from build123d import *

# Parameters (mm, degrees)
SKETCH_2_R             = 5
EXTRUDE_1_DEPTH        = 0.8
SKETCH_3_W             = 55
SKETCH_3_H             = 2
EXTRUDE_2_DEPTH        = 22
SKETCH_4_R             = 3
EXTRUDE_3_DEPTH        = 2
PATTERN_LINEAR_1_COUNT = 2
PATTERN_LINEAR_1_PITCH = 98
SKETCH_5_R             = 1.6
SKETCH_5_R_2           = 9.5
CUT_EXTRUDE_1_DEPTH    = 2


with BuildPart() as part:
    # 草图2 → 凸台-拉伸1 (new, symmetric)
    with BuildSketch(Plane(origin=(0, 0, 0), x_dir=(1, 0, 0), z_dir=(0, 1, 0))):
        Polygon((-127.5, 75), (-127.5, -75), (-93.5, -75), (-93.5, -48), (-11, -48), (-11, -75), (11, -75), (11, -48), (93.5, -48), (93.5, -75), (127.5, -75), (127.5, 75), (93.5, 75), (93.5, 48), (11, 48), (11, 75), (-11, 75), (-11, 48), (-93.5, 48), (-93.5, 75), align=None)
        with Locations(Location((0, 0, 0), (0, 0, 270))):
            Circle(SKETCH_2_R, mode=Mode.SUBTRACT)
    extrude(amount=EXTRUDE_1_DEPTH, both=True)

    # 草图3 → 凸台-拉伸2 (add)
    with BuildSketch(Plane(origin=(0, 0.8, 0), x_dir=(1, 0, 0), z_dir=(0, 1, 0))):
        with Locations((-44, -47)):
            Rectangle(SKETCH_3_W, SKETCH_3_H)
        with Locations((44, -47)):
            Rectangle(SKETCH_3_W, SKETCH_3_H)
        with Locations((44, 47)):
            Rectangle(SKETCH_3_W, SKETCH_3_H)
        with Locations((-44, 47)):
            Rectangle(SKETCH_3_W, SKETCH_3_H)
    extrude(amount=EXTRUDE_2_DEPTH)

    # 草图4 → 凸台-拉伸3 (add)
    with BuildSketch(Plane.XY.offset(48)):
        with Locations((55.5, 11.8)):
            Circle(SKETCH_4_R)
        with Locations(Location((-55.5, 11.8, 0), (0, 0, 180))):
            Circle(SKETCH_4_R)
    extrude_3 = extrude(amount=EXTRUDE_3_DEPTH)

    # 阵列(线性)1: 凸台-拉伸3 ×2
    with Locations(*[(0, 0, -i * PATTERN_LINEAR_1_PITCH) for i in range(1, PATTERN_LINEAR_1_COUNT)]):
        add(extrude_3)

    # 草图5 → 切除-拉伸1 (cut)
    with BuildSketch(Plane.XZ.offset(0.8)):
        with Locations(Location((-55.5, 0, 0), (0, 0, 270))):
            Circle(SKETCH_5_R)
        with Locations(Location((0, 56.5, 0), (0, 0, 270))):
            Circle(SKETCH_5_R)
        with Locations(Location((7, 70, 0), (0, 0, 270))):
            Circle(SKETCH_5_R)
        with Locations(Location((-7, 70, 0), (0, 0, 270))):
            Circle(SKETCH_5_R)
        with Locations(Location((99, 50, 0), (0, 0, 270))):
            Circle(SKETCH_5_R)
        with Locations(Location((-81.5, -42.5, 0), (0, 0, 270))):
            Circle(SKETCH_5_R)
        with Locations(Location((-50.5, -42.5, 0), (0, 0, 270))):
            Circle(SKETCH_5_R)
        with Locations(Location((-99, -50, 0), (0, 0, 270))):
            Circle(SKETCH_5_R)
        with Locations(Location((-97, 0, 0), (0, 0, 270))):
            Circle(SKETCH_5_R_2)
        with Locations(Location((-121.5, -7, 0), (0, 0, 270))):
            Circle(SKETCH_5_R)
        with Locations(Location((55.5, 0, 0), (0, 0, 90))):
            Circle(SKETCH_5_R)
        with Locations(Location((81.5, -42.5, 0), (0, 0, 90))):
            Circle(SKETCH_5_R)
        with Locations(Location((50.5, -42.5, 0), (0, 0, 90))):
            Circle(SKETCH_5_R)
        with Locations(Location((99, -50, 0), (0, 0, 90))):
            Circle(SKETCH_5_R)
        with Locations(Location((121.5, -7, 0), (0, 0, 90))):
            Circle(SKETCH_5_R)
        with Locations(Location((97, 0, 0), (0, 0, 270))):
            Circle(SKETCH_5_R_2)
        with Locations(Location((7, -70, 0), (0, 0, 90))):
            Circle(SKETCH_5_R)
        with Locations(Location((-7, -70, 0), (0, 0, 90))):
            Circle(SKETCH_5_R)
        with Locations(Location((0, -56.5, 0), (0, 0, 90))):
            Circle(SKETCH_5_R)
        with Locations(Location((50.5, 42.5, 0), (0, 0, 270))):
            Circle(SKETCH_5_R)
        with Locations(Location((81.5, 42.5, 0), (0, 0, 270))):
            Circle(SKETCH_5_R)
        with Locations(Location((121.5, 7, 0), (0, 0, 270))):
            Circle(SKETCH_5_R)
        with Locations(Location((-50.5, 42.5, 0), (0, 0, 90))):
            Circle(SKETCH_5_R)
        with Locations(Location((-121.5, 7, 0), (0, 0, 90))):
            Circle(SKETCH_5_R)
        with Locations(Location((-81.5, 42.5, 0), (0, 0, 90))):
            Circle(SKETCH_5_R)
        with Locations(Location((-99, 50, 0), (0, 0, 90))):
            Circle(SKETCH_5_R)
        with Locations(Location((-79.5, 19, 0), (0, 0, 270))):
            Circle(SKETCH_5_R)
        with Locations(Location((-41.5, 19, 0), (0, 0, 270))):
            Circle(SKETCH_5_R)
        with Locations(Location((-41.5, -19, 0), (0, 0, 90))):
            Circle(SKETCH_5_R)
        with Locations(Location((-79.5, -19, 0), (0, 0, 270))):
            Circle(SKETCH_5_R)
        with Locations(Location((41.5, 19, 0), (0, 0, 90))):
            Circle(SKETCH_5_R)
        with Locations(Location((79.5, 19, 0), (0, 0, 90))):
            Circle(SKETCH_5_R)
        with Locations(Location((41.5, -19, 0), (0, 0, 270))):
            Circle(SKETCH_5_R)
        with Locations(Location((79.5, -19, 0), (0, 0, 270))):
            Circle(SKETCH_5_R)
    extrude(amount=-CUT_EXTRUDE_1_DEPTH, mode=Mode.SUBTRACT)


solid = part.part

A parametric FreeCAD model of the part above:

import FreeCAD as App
import Part
import Sketcher

V = App.Vector

doc = App.newDocument("Part")
body = doc.addObject("PartDesign::Body", "Body")

# Sketch on XZ plane
sketch1 = doc.addObject("Sketcher::SketchObject", "Sketch")
body.addObject(sketch1)
sketch1.AttachmentSupport = (doc.XZ_Plane, [""])
sketch1.MapMode = "FlatFace"
sketch1.addGeometry([
    Part.LineSegment(V(-128, -75, 0), V(-128, 75, 0)),  # 0
    Part.LineSegment(V(-128, 75, 0), V(-94, 75, 0)),  # 1
    Part.LineSegment(V(-94, 75, 0), V(-94, 48, 0)),  # 2
    Part.LineSegment(V(-94, 48, 0), V(-11, 48, 0)),  # 3
    Part.LineSegment(V(-11, 48, 0), V(-11, 75, 0)),  # 4
    Part.LineSegment(V(-11, 75, 0), V(11, 75, 0)),  # 5
    Part.LineSegment(V(11, 75, 0), V(11, 48, 0)),  # 6
    Part.LineSegment(V(11, 48, 0), V(94, 48, 0)),  # 7
    Part.LineSegment(V(94, 48, 0), V(94, 75, 0)),  # 8
    Part.LineSegment(V(94, 75, 0), V(128, 75, 0)),  # 9
    Part.LineSegment(V(128, 75, 0), V(128, -75, 0)),  # 10
    Part.LineSegment(V(128, -75, 0), V(94, -75, 0)),  # 11
    Part.LineSegment(V(94, -75, 0), V(94, -48, 0)),  # 12
    Part.LineSegment(V(94, -48, 0), V(11, -48, 0)),  # 13
    Part.LineSegment(V(11, -48, 0), V(11, -75, 0)),  # 14
    Part.LineSegment(V(11, -75, 0), V(-11, -75, 0)),  # 15
    Part.LineSegment(V(-11, -75, 0), V(-11, -48, 0)),  # 16
    Part.LineSegment(V(-11, -48, 0), V(-94, -48, 0)),  # 17
    Part.LineSegment(V(-94, -48, 0), V(-94, -75, 0)),  # 18
    Part.LineSegment(V(-94, -75, 0), V(-128, -75, 0)),  # 19
    Part.Circle(V(0, 0, 0), V(0, 0, 1), 5),  # 20
], False)
sketch1.addConstraint([
    Sketcher.Constraint("Coincident", 0, 2, 1, 1),
    Sketcher.Constraint("Coincident", 1, 2, 2, 1),
    Sketcher.Constraint("Coincident", 2, 2, 3, 1),
    Sketcher.Constraint("Coincident", 3, 2, 4, 1),
    Sketcher.Constraint("Coincident", 4, 2, 5, 1),
    Sketcher.Constraint("Coincident", 5, 2, 6, 1),
    Sketcher.Constraint("Coincident", 6, 2, 7, 1),
    Sketcher.Constraint("Coincident", 7, 2, 8, 1),
    Sketcher.Constraint("Coincident", 8, 2, 9, 1),
    Sketcher.Constraint("Coincident", 9, 2, 10, 1),
    Sketcher.Constraint("Coincident", 10, 2, 11, 1),
    Sketcher.Constraint("Coincident", 11, 2, 12, 1),
    Sketcher.Constraint("Coincident", 12, 2, 13, 1),
    Sketcher.Constraint("Coincident", 13, 2, 14, 1),
    Sketcher.Constraint("Coincident", 14, 2, 15, 1),
    Sketcher.Constraint("Coincident", 15, 2, 16, 1),
    Sketcher.Constraint("Coincident", 16, 2, 17, 1),
    Sketcher.Constraint("Coincident", 17, 2, 18, 1),
    Sketcher.Constraint("Coincident", 18, 2, 19, 1),
    Sketcher.Constraint("Coincident", 19, 2, 0, 1),
    Sketcher.Constraint("Vertical", 0),
    Sketcher.Constraint("Horizontal", 1),
    Sketcher.Constraint("Vertical", 2),
    Sketcher.Constraint("Horizontal", 3),
    Sketcher.Constraint("Vertical", 4),
    Sketcher.Constraint("Horizontal", 5),
    Sketcher.Constraint("Vertical", 6),
    Sketcher.Constraint("Horizontal", 7),
    Sketcher.Constraint("Vertical", 8),
    Sketcher.Constraint("Horizontal", 9),
    Sketcher.Constraint("Vertical", 10),
    Sketcher.Constraint("Horizontal", 11),
    Sketcher.Constraint("Vertical", 12),
    Sketcher.Constraint("Horizontal", 13),
    Sketcher.Constraint("Vertical", 14),
    Sketcher.Constraint("Horizontal", 15),
    Sketcher.Constraint("Vertical", 16),
    Sketcher.Constraint("Horizontal", 17),
    Sketcher.Constraint("Vertical", 18),
    Sketcher.Constraint("Horizontal", 19),
    Sketcher.Constraint("Coincident", 20, 3, -1, 1),
    Sketcher.Constraint("Symmetric", 0, 2, 10, 2, -1, 1),
    Sketcher.Constraint("Symmetric", 2, 2, 12, 2, -1, 1),
    Sketcher.Constraint("Symmetric", 4, 2, 14, 2, -1, 1),
    Sketcher.Constraint("Symmetric", 6, 2, 16, 2, -1, 1),
    Sketcher.Constraint("Symmetric", 8, 2, 18, 2, -1, 1),
    Sketcher.Constraint("Symmetric", 3, 2, 6, 2, -2),
    Sketcher.Constraint("Symmetric", 1, 2, 8, 2, -2),
    Sketcher.Constraint("Horizontal", 1, 2, 4, 2),
    Sketcher.Constraint("Diameter", 20, 10.0),
    Sketcher.Constraint("DistanceX", 1, 1, 1, 2, 34.0),
    Sketcher.Constraint("DistanceX", 5, 1, 5, 2, 22.0),
    Sketcher.Constraint("DistanceY", 0, 1, 0, 2, 150.0),
    Sketcher.Constraint("DistanceY", 2, 2, 2, 1, 27.0),
    Sketcher.Constraint("DistanceX", 3, 1, 3, 2, 82.5),
])
pad1 = doc.addObject("PartDesign::Pad", "Pad")
body.addObject(pad1)
pad1.Profile = sketch1
pad1.Length = 1.6
pad1.Midplane = True

# Sketch on XZ plane
sketch2 = doc.addObject("Sketcher::SketchObject", "Sketch001")
body.addObject(sketch2)
sketch2.AttachmentSupport = (doc.XZ_Plane, [""])
sketch2.MapMode = "FlatFace"
sketch2.AttachmentOffset = App.Placement(V(0, 0, -0.8), App.Rotation())
sketch2.addGeometry([
    Part.LineSegment(V(-71.5, 46, 0), V(-71.5, 48, 0)),  # 0
    Part.LineSegment(V(-71.5, 48, 0), V(-16.5, 48, 0)),  # 1
    Part.LineSegment(V(-16.5, 48, 0), V(-16.5, 46, 0)),  # 2
    Part.LineSegment(V(-16.5, 46, 0), V(-71.5, 46, 0)),  # 3
    Part.LineSegment(V(16.5, 46, 0), V(16.5, 48, 0)),  # 4
    Part.LineSegment(V(16.5, 48, 0), V(71.5, 48, 0)),  # 5
    Part.LineSegment(V(71.5, 48, 0), V(71.5, 46, 0)),  # 6
    Part.LineSegment(V(71.5, 46, 0), V(16.5, 46, 0)),  # 7
    Part.LineSegment(V(16.5, -48, 0), V(16.5, -46, 0)),  # 8
    Part.LineSegment(V(16.5, -46, 0), V(71.5, -46, 0)),  # 9
    Part.LineSegment(V(71.5, -46, 0), V(71.5, -48, 0)),  # 10
    Part.LineSegment(V(71.5, -48, 0), V(16.5, -48, 0)),  # 11
    Part.LineSegment(V(-71.5, -48, 0), V(-71.5, -46, 0)),  # 12
    Part.LineSegment(V(-71.5, -46, 0), V(-16.5, -46, 0)),  # 13
    Part.LineSegment(V(-16.5, -46, 0), V(-16.5, -48, 0)),  # 14
    Part.LineSegment(V(-16.5, -48, 0), V(-71.5, -48, 0)),  # 15
], False)
sketch2.addConstraint([
    Sketcher.Constraint("Coincident", 0, 2, 1, 1),
    Sketcher.Constraint("Coincident", 1, 2, 2, 1),
    Sketcher.Constraint("Coincident", 2, 2, 3, 1),
    Sketcher.Constraint("Coincident", 3, 2, 0, 1),
    Sketcher.Constraint("Coincident", 4, 2, 5, 1),
    Sketcher.Constraint("Coincident", 5, 2, 6, 1),
    Sketcher.Constraint("Coincident", 6, 2, 7, 1),
    Sketcher.Constraint("Coincident", 7, 2, 4, 1),
    Sketcher.Constraint("Coincident", 8, 2, 9, 1),
    Sketcher.Constraint("Coincident", 9, 2, 10, 1),
    Sketcher.Constraint("Coincident", 10, 2, 11, 1),
    Sketcher.Constraint("Coincident", 11, 2, 8, 1),
    Sketcher.Constraint("Coincident", 12, 2, 13, 1),
    Sketcher.Constraint("Coincident", 13, 2, 14, 1),
    Sketcher.Constraint("Coincident", 14, 2, 15, 1),
    Sketcher.Constraint("Coincident", 15, 2, 12, 1),
    Sketcher.Constraint("Vertical", 0),
    Sketcher.Constraint("Horizontal", 1),
    Sketcher.Constraint("Vertical", 2),
    Sketcher.Constraint("Horizontal", 3),
    Sketcher.Constraint("Vertical", 4),
    Sketcher.Constraint("Horizontal", 5),
    Sketcher.Constraint("Vertical", 6),
    Sketcher.Constraint("Horizontal", 7),
    Sketcher.Constraint("Vertical", 8),
    Sketcher.Constraint("Horizontal", 9),
    Sketcher.Constraint("Vertical", 10),
    Sketcher.Constraint("Horizontal", 11),
    Sketcher.Constraint("Vertical", 12),
    Sketcher.Constraint("Horizontal", 13),
    Sketcher.Constraint("Vertical", 14),
    Sketcher.Constraint("Horizontal", 15),
    Sketcher.Constraint("Symmetric", 2, 2, 8, 2, -1, 1),
    Sketcher.Constraint("Symmetric", 0, 2, 10, 2, -1, 1),
    Sketcher.Constraint("Symmetric", 6, 2, 12, 2, -1, 1),
    Sketcher.Constraint("Symmetric", 4, 2, 14, 2, -1, 1),
    Sketcher.Constraint("Symmetric", 1, 2, 4, 2, -2),
    Sketcher.Constraint("Symmetric", 3, 2, 6, 2, -2),
    Sketcher.Constraint("DistanceX", 1, 1, 1, 2, 55.0),
    Sketcher.Constraint("DistanceY", 0, 1, 0, 2, 2.0),
    Sketcher.Constraint("DistanceY", -1, 1, 0, 2, 48.0),
    Sketcher.Constraint("DistanceX", 1, 2, 4, 2, 33.0),
])
pad2 = doc.addObject("PartDesign::Pad", "Pad001")
body.addObject(pad2)
pad2.Profile = sketch2
pad2.Length = 22
pad2.Reversed = True

# Sketch on XY plane
sketch3 = doc.addObject("Sketcher::SketchObject", "Sketch002")
body.addObject(sketch3)
sketch3.AttachmentSupport = (doc.XY_Plane, [""])
sketch3.MapMode = "FlatFace"
sketch3.AttachmentOffset = App.Placement(V(0, 0, 48), App.Rotation())
sketch3.addGeometry([
    Part.Circle(V(55.5, 11.8, 0), V(0, 0, 1), 3),
    Part.Circle(V(-55.5, 11.8, 0), V(0, 0, 1), 3),
], False)
sketch3.addConstraint([
    Sketcher.Constraint("Equal", 0, 1),
    Sketcher.Constraint("Symmetric", 0, 3, 1, 3, -2),
    Sketcher.Constraint("Diameter", 0, 6.0),
    Sketcher.Constraint("DistanceX", 1, 3, 0, 3, 111.0),
    Sketcher.Constraint("DistanceY", -1, 1, 0, 3, 11.8),
])
pad3 = doc.addObject("PartDesign::Pad", "Pad002")
body.addObject(pad3)
pad3.Profile = sketch3
pad3.Length = 2
doc.recompute()

linearpattern = doc.addObject("PartDesign::LinearPattern", "LinearPattern")
body.addObject(linearpattern)
linearpattern.Originals = [pad3]
linearpattern.Direction = (doc.Z_Axis, [""])
linearpattern.Mode = "offset"
linearpattern.Offset = 98
linearpattern.Occurrences = 2
linearpattern.Reversed = True
body.Tip = linearpattern

# Sketch on XZ plane
sketch4 = doc.addObject("Sketcher::SketchObject", "Sketch003")
body.addObject(sketch4)
sketch4.AttachmentSupport = (doc.XZ_Plane, [""])
sketch4.MapMode = "FlatFace"
sketch4.AttachmentOffset = App.Placement(V(0, 0, 0.8), App.Rotation())
sketch4.addGeometry([
    Part.Circle(V(-55.5, 0, 0), V(0, 0, 1), 1.6),  # 0
    Part.Circle(V(0, 56.5, 0), V(0, 0, 1), 1.6),  # 1
    Part.Circle(V(7, 70, 0), V(0, 0, 1), 1.6),  # 2
    Part.Circle(V(-7, 70, 0), V(0, 0, 1), 1.6),  # 3
    Part.Circle(V(99, 50, 0), V(0, 0, 1), 1.6),  # 4
    Part.Circle(V(-81.5, -42.5, 0), V(0, 0, 1), 1.6),  # 5
    Part.Circle(V(-50.5, -42.5, 0), V(0, 0, 1), 1.6),  # 6
    Part.Circle(V(-99, -50, 0), V(0, 0, 1), 1.6),  # 7
    Part.Circle(V(-97, 0, 0), V(0, 0, 1), 9.5),  # 8
    Part.Circle(V(-121.5, -7, 0), V(0, 0, 1), 1.6),  # 9
    Part.Circle(V(55.5, 0, 0), V(0, 0, 1), 1.6),  # 10
    Part.Circle(V(81.5, -42.5, 0), V(0, 0, 1), 1.6),  # 11
    Part.Circle(V(50.5, -42.5, 0), V(0, 0, 1), 1.6),  # 12
    Part.Circle(V(99, -50, 0), V(0, 0, 1), 1.6),  # 13
    Part.Circle(V(121.5, -7, 0), V(0, 0, 1), 1.6),  # 14
    Part.Circle(V(97, 0, 0), V(0, 0, 1), 9.5),  # 15
    Part.Circle(V(7, -70, 0), V(0, 0, 1), 1.6),  # 16
    Part.Circle(V(-7, -70, 0), V(0, 0, 1), 1.6),  # 17
    Part.Circle(V(0, -56.5, 0), V(0, 0, 1), 1.6),  # 18
    Part.Circle(V(50.5, 42.5, 0), V(0, 0, 1), 1.6),  # 19
    Part.Circle(V(81.5, 42.5, 0), V(0, 0, 1), 1.6),  # 20
    Part.Circle(V(121.5, 7, 0), V(0, 0, 1), 1.6),  # 21
    Part.Circle(V(-50.5, 42.5, 0), V(0, 0, 1), 1.6),  # 22
    Part.Circle(V(-121.5, 7, 0), V(0, 0, 1), 1.6),  # 23
    Part.Circle(V(-81.5, 42.5, 0), V(0, 0, 1), 1.6),  # 24
    Part.Circle(V(-99, 50, 0), V(0, 0, 1), 1.6),  # 25
    Part.Circle(V(-79.5, 19, 0), V(0, 0, 1), 1.6),  # 26
    Part.Circle(V(-41.5, 19, 0), V(0, 0, 1), 1.6),  # 27
    Part.Circle(V(-41.5, -19, 0), V(0, 0, 1), 1.6),  # 28
    Part.Circle(V(-79.5, -19, 0), V(0, 0, 1), 1.6),  # 29
    Part.Circle(V(41.5, 19, 0), V(0, 0, 1), 1.6),  # 30
    Part.Circle(V(79.5, 19, 0), V(0, 0, 1), 1.6),  # 31
    Part.Circle(V(41.5, -19, 0), V(0, 0, 1), 1.6),  # 32
    Part.Circle(V(79.5, -19, 0), V(0, 0, 1), 1.6),  # 33
], False)
sketch4.addConstraint([
    Sketcher.Constraint("Equal", 0, 1),
    Sketcher.Constraint("Equal", 1, 2),
    Sketcher.Constraint("Equal", 2, 3),
    Sketcher.Constraint("Equal", 3, 4),
    Sketcher.Constraint("Equal", 4, 5),
    Sketcher.Constraint("Equal", 5, 6),
    Sketcher.Constraint("Equal", 6, 7),
    Sketcher.Constraint("Equal", 7, 9),
    Sketcher.Constraint("Equal", 9, 10),
    Sketcher.Constraint("Equal", 10, 11),
    Sketcher.Constraint("Equal", 11, 12),
    Sketcher.Constraint("Equal", 12, 13),
    Sketcher.Constraint("Equal", 13, 14),
    Sketcher.Constraint("Equal", 8, 15),
    Sketcher.Constraint("Equal", 14, 16),
    Sketcher.Constraint("Equal", 16, 17),
    Sketcher.Constraint("Equal", 17, 18),
    Sketcher.Constraint("Equal", 18, 19),
    Sketcher.Constraint("Equal", 19, 20),
    Sketcher.Constraint("Equal", 20, 21),
    Sketcher.Constraint("Equal", 21, 22),
    Sketcher.Constraint("Equal", 22, 23),
    Sketcher.Constraint("Equal", 23, 24),
    Sketcher.Constraint("Equal", 24, 25),
    Sketcher.Constraint("Equal", 25, 26),
    Sketcher.Constraint("Equal", 26, 27),
    Sketcher.Constraint("Equal", 27, 28),
    Sketcher.Constraint("Equal", 28, 29),
    Sketcher.Constraint("Equal", 29, 30),
    Sketcher.Constraint("Equal", 30, 31),
    Sketcher.Constraint("Equal", 31, 32),
    Sketcher.Constraint("Equal", 32, 33),
    Sketcher.Constraint("Symmetric", 4, 3, 7, 3, -1, 1),
    Sketcher.Constraint("Symmetric", 0, 3, 10, 3, -1, 1),
    Sketcher.Constraint("Symmetric", 8, 3, 15, 3, -1, 1),
    Sketcher.Constraint("Symmetric", 3, 3, 16, 3, -1, 1),
    Sketcher.Constraint("Symmetric", 2, 3, 17, 3, -1, 1),
    Sketcher.Constraint("Symmetric", 1, 3, 18, 3, -1, 1),
    Sketcher.Constraint("Symmetric", 6, 3, 19, 3, -1, 1),
    Sketcher.Constraint("Symmetric", 5, 3, 20, 3, -1, 1),
    Sketcher.Constraint("Symmetric", 9, 3, 21, 3, -1, 1),
    Sketcher.Constraint("Symmetric", 12, 3, 22, 3, -1, 1),
    Sketcher.Constraint("Symmetric", 14, 3, 23, 3, -1, 1),
    Sketcher.Constraint("Symmetric", 11, 3, 24, 3, -1, 1),
    Sketcher.Constraint("Symmetric", 13, 3, 25, 3, -1, 1),
    Sketcher.Constraint("Symmetric", 28, 3, 30, 3, -1, 1),
    Sketcher.Constraint("Symmetric", 29, 3, 31, 3, -1, 1),
    Sketcher.Constraint("Symmetric", 27, 3, 32, 3, -1, 1),
    Sketcher.Constraint("Symmetric", 26, 3, 33, 3, -1, 1),
    Sketcher.Constraint("Symmetric", 2, 3, 3, 3, -2),
    Sketcher.Constraint("Symmetric", 5, 3, 11, 3, -2),
    Sketcher.Constraint("Symmetric", 6, 3, 12, 3, -2),
    Sketcher.Constraint("Symmetric", 7, 3, 13, 3, -2),
    Sketcher.Constraint("Symmetric", 9, 3, 14, 3, -2),
    Sketcher.Constraint("Symmetric", 27, 3, 30, 3, -2),
    Sketcher.Constraint("Symmetric", 26, 3, 31, 3, -2),
    Sketcher.Constraint("PointOnObject", 0, 3, -1),
    Sketcher.Constraint("PointOnObject", 1, 3, -2),
    Sketcher.Constraint("PointOnObject", 8, 3, -1),
    Sketcher.Constraint("Horizontal", 5, 3, 6, 3),
    Sketcher.Constraint("Horizontal", 26, 3, 27, 3),
    Sketcher.Constraint("Diameter", 8, 19.0),
    Sketcher.Constraint("Diameter", 0, 3.2),
    Sketcher.Constraint("DistanceX", -1, 1, 2, 3, 7.0),
    Sketcher.Constraint("DistanceY", -1, 1, 2, 3, 70.0),
    Sketcher.Constraint("DistanceX", -1, 1, 4, 3, 99.0),
    Sketcher.Constraint("DistanceY", -1, 1, 4, 3, 50.0),
    Sketcher.Constraint("DistanceX", 8, 3, -1, 1, 97.0),
    Sketcher.Constraint("DistanceY", 9, 3, -1, 1, 7.0),
    Sketcher.Constraint("DistanceY", -1, 1, 26, 3, 19.0),
    Sketcher.Constraint("DistanceX", 5, 3, 0, 3, 26.0),
    Sketcher.Constraint("DistanceY", 5, 3, 1, 3, 99.0),
    Sketcher.Constraint("DistanceX", 5, 3, 6, 3, 31.0),
    Sketcher.Constraint("DistanceX", 9, 3, 5, 3, 40.0),
    Sketcher.Constraint("DistanceX", 0, 3, 10, 3, 111.0),
    Sketcher.Constraint("DistanceY", 18, 3, 6, 3, 14.0),
    Sketcher.Constraint("DistanceX", 24, 3, 26, 3, 2.0),
    Sketcher.Constraint("DistanceX", 0, 3, 27, 3, 14.0),
])
pocket1 = doc.addObject("PartDesign::Pocket", "Pocket")
body.addObject(pocket1)
pocket1.Profile = sketch4
pocket1.Length = 2

doc.recompute()
